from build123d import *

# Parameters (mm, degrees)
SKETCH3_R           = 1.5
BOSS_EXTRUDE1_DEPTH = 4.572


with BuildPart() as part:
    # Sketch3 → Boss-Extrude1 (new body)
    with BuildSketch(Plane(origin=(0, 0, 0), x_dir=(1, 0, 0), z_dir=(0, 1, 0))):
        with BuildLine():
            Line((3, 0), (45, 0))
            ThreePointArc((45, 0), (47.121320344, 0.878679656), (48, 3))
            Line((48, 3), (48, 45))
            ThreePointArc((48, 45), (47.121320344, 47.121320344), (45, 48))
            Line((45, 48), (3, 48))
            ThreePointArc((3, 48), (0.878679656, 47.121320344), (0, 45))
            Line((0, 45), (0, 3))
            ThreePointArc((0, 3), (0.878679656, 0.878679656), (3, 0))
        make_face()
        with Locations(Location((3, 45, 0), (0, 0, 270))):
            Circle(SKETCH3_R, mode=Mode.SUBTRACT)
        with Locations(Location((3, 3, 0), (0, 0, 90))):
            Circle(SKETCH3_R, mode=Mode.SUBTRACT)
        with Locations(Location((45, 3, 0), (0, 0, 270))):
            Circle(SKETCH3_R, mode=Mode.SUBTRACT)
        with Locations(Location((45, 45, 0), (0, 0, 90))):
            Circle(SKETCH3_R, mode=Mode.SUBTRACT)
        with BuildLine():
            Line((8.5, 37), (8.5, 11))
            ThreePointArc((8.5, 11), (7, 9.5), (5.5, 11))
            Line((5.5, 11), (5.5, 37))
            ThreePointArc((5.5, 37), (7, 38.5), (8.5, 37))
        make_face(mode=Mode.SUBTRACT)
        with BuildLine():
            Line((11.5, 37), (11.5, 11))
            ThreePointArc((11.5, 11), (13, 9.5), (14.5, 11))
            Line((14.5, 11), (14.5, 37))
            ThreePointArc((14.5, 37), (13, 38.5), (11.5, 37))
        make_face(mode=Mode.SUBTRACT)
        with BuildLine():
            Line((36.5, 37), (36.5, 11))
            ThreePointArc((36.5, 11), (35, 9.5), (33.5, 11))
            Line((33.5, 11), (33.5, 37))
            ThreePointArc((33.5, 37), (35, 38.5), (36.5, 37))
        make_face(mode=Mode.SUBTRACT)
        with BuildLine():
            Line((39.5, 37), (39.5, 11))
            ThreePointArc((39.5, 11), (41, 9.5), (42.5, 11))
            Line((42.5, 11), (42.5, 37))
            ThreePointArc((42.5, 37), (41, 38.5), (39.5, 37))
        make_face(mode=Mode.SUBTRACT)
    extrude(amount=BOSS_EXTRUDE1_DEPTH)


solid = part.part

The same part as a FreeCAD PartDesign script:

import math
import FreeCAD as App
import Part
import Sketcher
from FreeCAD import Vector

doc = App.newDocument("Part")
body = doc.addObject("PartDesign::Body", "Body")

sketch1 = doc.addObject("Sketcher::SketchObject", "Sketch")
body.addObject(sketch1)
sketch1.AttachmentSupport = (doc.XZ_Plane, [""])
sketch1.MapMode = "FlatFace"
sketch1.addGeometry([
    Part.LineSegment(Vector(3, 0, 0), Vector(45, 0, 0)),
    Part.ArcOfCircle(Part.Circle(Vector(45, -3, 0), Vector(0, 0, 1), 3), math.radians(0), math.radians(90)),
    Part.LineSegment(Vector(48, -3, 0), Vector(48, -45, 0)),
    Part.ArcOfCircle(Part.Circle(Vector(45, -45, 0), Vector(0, 0, 1), 3), math.radians(-90), math.radians(0)),
    Part.LineSegment(Vector(45, -48, 0), Vector(3, -48, 0)),
    Part.ArcOfCircle(Part.Circle(Vector(3, -45, 0), Vector(0, 0, 1), 3), math.radians(180), math.radians(270)),
    Part.LineSegment(Vector(0, -45, 0), Vector(0, -3, 0)),
    Part.ArcOfCircle(Part.Circle(Vector(3, -3, 0), Vector(0, 0, 1), 3), math.radians(90), math.radians(180)),
    Part.Circle(Vector(3, -3, 0), Vector(0, 0, 1), 1.5),
    Part.Circle(Vector(45, -3, 0), Vector(0, 0, 1), 1.5),
    Part.ArcOfCircle(Part.Circle(Vector(7, -37, 0), Vector(0, 0, 1), 1.5), math.radians(180), math.radians(360)),
    Part.LineSegment(Vector(8.5, -37, 0), Vector(8.5, -11, 0)),
    Part.ArcOfCircle(Part.Circle(Vector(7, -11, 0), Vector(0, 0, 1), 1.5), math.radians(0), math.radians(180)),
    Part.LineSegment(Vector(5.5, -11, 0), Vector(5.5, -37, 0)),
    Part.LineSegment(Vector(11.5, -11, 0), Vector(11.5, -37, 0)),
    Part.ArcOfCircle(Part.Circle(Vector(13, -37, 0), Vector(0, 0, 1), 1.5), math.radians(180), math.radians(360)),
    Part.LineSegment(Vector(14.5, -37, 0), Vector(14.5, -11, 0)),
    Part.ArcOfCircle(Part.Circle(Vector(13, -11, 0), Vector(0, 0, 1), 1.5), math.radians(0), math.radians(180)),
    Part.Circle(Vector(3, -45, 0), Vector(0, 0, 1), 1.5),
    Part.ArcOfCircle(Part.Circle(Vector(35, -37, 0), Vector(0, 0, 1), 1.5), math.radians(180), math.radians(360)),
    Part.LineSegment(Vector(36.5, -37, 0), Vector(36.5, -11, 0)),
    Part.ArcOfCircle(Part.Circle(Vector(35, -11, 0), Vector(0, 0, 1), 1.5), math.radians(0), math.radians(180)),
    Part.LineSegment(Vector(33.5, -11, 0), Vector(33.5, -37, 0)),
    Part.LineSegment(Vector(39.5, -11, 0), Vector(39.5, -37, 0)),
    Part.ArcOfCircle(Part.Circle(Vector(41, -37, 0), Vector(0, 0, 1), 1.5), math.radians(180), math.radians(360)),
    Part.LineSegment(Vector(42.5, -37, 0), Vector(42.5, -11, 0)),
    Part.ArcOfCircle(Part.Circle(Vector(41, -11, 0), Vector(0, 0, 1), 1.5), math.radians(0), math.radians(180)),
    Part.Circle(Vector(45, -45, 0), Vector(0, 0, 1), 1.5),
], False)
sketch1.addConstraint([
    Sketcher.Constraint("Tangent", 0, 2, 1, 2),
    Sketcher.Constraint("Tangent", 1, 1, 2, 1),
    Sketcher.Constraint("Tangent", 2, 2, 3, 2),
    Sketcher.Constraint("Tangent", 3, 1, 4, 1),
    Sketcher.Constraint("Tangent", 4, 2, 5, 2),
    Sketcher.Constraint("Tangent", 5, 1, 6, 1),
    Sketcher.Constraint("Tangent", 6, 2, 7, 2),
    Sketcher.Constraint("Tangent", 7, 1, 0, 1),
    Sketcher.Constraint("Tangent", 10, 2, 11, 1),
    Sketcher.Constraint("Tangent", 11, 2, 12, 1),
    Sketcher.Constraint("Tangent", 12, 2, 13, 1),
    Sketcher.Constraint("Tangent", 13, 2, 10, 1),
    Sketcher.Constraint("Tangent", 14, 2, 15, 1),
    Sketcher.Constraint("Tangent", 15, 2, 16, 1),
    Sketcher.Constraint("Tangent", 16, 2, 17, 1),
    Sketcher.Constraint("Tangent", 17, 2, 14, 1),
    Sketcher.Constraint("Tangent", 19, 2, 20, 1),
    Sketcher.Constraint("Tangent", 20, 2, 21, 1),
    Sketcher.Constraint("Tangent", 21, 2, 22, 1),
    Sketcher.Constraint("Tangent", 22, 2, 19, 1),
    Sketcher.Constraint("Tangent", 23, 2, 24, 1),
    Sketcher.Constraint("Tangent", 24, 2, 25, 1),
    Sketcher.Constraint("Tangent", 25, 2, 26, 1),
    Sketcher.Constraint("Tangent", 26, 2, 23, 1),
    Sketcher.Constraint("Horizontal", 0),
    Sketcher.Constraint("Vertical", 2),
    Sketcher.Constraint("Horizontal", 4),
    Sketcher.Constraint("Vertical", 6),
    Sketcher.Constraint("Vertical", 11),
    Sketcher.Constraint("Vertical", 13),
    Sketcher.Constraint("Vertical", 14),
    Sketcher.Constraint("Vertical", 16),
    Sketcher.Constraint("Vertical", 20),
    Sketcher.Constraint("Vertical", 22),
    Sketcher.Constraint("Vertical", 23),
    Sketcher.Constraint("Vertical", 25),
    Sketcher.Constraint("Coincident", 8, 3, 7, 3),
    Sketcher.Constraint("Coincident", 9, 3, 1, 3),
    Sketcher.Constraint("Coincident", 18, 3, 5, 3),
    Sketcher.Constraint("Coincident", 27, 3, 3, 3),
    Sketcher.Constraint("Equal", 1, 3),
    Sketcher.Constraint("Equal", 3, 5),
    Sketcher.Constraint("Equal", 5, 7),
    Sketcher.Constraint("Equal", 8, 9),
    Sketcher.Constraint("Equal", 9, 10),
    Sketcher.Constraint("Equal", 12, 15),
    Sketcher.Constraint("Equal", 17, 18),
    Sketcher.Constraint("Equal", 18, 19),
    Sketcher.Constraint("Equal", 21, 24),
    Sketcher.Constraint("Equal", 26, 27),
    Sketcher.Constraint("PointOnObject", 0, 2, -1),
    Sketcher.Constraint("PointOnObject", 5, 1, -2),
    Sketcher.Constraint("Horizontal", 10, 3, 15, 3),
    Sketcher.Constraint("Horizontal", 12, 3, 17, 3),
    Sketcher.Constraint("Horizontal", 15, 3, 19, 3),
    Sketcher.Constraint("Horizontal", 17, 3, 21, 3),
    Sketcher.Constraint("Horizontal", 19, 3, 24, 3),
    Sketcher.Constraint("Horizontal", 21, 3, 26, 3),
    Sketcher.Constraint("Equal", 4, 2),
    Sketcher.Constraint("Diameter", 8, 3.0),
    Sketcher.Constraint("Radius", 1, 3.0),
    Sketcher.Constraint("DistanceX", 0, 1, 0, 2, 42.0),
    Sketcher.Constraint("DistanceY", 11, 1, 11, 2, 26.0),
    Sketcher.Constraint("DistanceX", -1, 1, 10, 3, 7.0),
    Sketcher.Constraint("DistanceY", 10, 3, -1, 1, 37.0),
    Sketcher.Constraint("DistanceX", -1, 1, 15, 3, 13.0),
    Sketcher.Constraint("DistanceX", -1, 1, 19, 3, 35.0),
    Sketcher.Constraint("DistanceX", -1, 1, 24, 3, 41.0),
])
pad1 = doc.addObject("PartDesign::Pad", "Pad")
body.addObject(pad1)
pad1.Profile = sketch1
pad1.Length = 4.572
pad1.Reversed = True

doc.recompute()
